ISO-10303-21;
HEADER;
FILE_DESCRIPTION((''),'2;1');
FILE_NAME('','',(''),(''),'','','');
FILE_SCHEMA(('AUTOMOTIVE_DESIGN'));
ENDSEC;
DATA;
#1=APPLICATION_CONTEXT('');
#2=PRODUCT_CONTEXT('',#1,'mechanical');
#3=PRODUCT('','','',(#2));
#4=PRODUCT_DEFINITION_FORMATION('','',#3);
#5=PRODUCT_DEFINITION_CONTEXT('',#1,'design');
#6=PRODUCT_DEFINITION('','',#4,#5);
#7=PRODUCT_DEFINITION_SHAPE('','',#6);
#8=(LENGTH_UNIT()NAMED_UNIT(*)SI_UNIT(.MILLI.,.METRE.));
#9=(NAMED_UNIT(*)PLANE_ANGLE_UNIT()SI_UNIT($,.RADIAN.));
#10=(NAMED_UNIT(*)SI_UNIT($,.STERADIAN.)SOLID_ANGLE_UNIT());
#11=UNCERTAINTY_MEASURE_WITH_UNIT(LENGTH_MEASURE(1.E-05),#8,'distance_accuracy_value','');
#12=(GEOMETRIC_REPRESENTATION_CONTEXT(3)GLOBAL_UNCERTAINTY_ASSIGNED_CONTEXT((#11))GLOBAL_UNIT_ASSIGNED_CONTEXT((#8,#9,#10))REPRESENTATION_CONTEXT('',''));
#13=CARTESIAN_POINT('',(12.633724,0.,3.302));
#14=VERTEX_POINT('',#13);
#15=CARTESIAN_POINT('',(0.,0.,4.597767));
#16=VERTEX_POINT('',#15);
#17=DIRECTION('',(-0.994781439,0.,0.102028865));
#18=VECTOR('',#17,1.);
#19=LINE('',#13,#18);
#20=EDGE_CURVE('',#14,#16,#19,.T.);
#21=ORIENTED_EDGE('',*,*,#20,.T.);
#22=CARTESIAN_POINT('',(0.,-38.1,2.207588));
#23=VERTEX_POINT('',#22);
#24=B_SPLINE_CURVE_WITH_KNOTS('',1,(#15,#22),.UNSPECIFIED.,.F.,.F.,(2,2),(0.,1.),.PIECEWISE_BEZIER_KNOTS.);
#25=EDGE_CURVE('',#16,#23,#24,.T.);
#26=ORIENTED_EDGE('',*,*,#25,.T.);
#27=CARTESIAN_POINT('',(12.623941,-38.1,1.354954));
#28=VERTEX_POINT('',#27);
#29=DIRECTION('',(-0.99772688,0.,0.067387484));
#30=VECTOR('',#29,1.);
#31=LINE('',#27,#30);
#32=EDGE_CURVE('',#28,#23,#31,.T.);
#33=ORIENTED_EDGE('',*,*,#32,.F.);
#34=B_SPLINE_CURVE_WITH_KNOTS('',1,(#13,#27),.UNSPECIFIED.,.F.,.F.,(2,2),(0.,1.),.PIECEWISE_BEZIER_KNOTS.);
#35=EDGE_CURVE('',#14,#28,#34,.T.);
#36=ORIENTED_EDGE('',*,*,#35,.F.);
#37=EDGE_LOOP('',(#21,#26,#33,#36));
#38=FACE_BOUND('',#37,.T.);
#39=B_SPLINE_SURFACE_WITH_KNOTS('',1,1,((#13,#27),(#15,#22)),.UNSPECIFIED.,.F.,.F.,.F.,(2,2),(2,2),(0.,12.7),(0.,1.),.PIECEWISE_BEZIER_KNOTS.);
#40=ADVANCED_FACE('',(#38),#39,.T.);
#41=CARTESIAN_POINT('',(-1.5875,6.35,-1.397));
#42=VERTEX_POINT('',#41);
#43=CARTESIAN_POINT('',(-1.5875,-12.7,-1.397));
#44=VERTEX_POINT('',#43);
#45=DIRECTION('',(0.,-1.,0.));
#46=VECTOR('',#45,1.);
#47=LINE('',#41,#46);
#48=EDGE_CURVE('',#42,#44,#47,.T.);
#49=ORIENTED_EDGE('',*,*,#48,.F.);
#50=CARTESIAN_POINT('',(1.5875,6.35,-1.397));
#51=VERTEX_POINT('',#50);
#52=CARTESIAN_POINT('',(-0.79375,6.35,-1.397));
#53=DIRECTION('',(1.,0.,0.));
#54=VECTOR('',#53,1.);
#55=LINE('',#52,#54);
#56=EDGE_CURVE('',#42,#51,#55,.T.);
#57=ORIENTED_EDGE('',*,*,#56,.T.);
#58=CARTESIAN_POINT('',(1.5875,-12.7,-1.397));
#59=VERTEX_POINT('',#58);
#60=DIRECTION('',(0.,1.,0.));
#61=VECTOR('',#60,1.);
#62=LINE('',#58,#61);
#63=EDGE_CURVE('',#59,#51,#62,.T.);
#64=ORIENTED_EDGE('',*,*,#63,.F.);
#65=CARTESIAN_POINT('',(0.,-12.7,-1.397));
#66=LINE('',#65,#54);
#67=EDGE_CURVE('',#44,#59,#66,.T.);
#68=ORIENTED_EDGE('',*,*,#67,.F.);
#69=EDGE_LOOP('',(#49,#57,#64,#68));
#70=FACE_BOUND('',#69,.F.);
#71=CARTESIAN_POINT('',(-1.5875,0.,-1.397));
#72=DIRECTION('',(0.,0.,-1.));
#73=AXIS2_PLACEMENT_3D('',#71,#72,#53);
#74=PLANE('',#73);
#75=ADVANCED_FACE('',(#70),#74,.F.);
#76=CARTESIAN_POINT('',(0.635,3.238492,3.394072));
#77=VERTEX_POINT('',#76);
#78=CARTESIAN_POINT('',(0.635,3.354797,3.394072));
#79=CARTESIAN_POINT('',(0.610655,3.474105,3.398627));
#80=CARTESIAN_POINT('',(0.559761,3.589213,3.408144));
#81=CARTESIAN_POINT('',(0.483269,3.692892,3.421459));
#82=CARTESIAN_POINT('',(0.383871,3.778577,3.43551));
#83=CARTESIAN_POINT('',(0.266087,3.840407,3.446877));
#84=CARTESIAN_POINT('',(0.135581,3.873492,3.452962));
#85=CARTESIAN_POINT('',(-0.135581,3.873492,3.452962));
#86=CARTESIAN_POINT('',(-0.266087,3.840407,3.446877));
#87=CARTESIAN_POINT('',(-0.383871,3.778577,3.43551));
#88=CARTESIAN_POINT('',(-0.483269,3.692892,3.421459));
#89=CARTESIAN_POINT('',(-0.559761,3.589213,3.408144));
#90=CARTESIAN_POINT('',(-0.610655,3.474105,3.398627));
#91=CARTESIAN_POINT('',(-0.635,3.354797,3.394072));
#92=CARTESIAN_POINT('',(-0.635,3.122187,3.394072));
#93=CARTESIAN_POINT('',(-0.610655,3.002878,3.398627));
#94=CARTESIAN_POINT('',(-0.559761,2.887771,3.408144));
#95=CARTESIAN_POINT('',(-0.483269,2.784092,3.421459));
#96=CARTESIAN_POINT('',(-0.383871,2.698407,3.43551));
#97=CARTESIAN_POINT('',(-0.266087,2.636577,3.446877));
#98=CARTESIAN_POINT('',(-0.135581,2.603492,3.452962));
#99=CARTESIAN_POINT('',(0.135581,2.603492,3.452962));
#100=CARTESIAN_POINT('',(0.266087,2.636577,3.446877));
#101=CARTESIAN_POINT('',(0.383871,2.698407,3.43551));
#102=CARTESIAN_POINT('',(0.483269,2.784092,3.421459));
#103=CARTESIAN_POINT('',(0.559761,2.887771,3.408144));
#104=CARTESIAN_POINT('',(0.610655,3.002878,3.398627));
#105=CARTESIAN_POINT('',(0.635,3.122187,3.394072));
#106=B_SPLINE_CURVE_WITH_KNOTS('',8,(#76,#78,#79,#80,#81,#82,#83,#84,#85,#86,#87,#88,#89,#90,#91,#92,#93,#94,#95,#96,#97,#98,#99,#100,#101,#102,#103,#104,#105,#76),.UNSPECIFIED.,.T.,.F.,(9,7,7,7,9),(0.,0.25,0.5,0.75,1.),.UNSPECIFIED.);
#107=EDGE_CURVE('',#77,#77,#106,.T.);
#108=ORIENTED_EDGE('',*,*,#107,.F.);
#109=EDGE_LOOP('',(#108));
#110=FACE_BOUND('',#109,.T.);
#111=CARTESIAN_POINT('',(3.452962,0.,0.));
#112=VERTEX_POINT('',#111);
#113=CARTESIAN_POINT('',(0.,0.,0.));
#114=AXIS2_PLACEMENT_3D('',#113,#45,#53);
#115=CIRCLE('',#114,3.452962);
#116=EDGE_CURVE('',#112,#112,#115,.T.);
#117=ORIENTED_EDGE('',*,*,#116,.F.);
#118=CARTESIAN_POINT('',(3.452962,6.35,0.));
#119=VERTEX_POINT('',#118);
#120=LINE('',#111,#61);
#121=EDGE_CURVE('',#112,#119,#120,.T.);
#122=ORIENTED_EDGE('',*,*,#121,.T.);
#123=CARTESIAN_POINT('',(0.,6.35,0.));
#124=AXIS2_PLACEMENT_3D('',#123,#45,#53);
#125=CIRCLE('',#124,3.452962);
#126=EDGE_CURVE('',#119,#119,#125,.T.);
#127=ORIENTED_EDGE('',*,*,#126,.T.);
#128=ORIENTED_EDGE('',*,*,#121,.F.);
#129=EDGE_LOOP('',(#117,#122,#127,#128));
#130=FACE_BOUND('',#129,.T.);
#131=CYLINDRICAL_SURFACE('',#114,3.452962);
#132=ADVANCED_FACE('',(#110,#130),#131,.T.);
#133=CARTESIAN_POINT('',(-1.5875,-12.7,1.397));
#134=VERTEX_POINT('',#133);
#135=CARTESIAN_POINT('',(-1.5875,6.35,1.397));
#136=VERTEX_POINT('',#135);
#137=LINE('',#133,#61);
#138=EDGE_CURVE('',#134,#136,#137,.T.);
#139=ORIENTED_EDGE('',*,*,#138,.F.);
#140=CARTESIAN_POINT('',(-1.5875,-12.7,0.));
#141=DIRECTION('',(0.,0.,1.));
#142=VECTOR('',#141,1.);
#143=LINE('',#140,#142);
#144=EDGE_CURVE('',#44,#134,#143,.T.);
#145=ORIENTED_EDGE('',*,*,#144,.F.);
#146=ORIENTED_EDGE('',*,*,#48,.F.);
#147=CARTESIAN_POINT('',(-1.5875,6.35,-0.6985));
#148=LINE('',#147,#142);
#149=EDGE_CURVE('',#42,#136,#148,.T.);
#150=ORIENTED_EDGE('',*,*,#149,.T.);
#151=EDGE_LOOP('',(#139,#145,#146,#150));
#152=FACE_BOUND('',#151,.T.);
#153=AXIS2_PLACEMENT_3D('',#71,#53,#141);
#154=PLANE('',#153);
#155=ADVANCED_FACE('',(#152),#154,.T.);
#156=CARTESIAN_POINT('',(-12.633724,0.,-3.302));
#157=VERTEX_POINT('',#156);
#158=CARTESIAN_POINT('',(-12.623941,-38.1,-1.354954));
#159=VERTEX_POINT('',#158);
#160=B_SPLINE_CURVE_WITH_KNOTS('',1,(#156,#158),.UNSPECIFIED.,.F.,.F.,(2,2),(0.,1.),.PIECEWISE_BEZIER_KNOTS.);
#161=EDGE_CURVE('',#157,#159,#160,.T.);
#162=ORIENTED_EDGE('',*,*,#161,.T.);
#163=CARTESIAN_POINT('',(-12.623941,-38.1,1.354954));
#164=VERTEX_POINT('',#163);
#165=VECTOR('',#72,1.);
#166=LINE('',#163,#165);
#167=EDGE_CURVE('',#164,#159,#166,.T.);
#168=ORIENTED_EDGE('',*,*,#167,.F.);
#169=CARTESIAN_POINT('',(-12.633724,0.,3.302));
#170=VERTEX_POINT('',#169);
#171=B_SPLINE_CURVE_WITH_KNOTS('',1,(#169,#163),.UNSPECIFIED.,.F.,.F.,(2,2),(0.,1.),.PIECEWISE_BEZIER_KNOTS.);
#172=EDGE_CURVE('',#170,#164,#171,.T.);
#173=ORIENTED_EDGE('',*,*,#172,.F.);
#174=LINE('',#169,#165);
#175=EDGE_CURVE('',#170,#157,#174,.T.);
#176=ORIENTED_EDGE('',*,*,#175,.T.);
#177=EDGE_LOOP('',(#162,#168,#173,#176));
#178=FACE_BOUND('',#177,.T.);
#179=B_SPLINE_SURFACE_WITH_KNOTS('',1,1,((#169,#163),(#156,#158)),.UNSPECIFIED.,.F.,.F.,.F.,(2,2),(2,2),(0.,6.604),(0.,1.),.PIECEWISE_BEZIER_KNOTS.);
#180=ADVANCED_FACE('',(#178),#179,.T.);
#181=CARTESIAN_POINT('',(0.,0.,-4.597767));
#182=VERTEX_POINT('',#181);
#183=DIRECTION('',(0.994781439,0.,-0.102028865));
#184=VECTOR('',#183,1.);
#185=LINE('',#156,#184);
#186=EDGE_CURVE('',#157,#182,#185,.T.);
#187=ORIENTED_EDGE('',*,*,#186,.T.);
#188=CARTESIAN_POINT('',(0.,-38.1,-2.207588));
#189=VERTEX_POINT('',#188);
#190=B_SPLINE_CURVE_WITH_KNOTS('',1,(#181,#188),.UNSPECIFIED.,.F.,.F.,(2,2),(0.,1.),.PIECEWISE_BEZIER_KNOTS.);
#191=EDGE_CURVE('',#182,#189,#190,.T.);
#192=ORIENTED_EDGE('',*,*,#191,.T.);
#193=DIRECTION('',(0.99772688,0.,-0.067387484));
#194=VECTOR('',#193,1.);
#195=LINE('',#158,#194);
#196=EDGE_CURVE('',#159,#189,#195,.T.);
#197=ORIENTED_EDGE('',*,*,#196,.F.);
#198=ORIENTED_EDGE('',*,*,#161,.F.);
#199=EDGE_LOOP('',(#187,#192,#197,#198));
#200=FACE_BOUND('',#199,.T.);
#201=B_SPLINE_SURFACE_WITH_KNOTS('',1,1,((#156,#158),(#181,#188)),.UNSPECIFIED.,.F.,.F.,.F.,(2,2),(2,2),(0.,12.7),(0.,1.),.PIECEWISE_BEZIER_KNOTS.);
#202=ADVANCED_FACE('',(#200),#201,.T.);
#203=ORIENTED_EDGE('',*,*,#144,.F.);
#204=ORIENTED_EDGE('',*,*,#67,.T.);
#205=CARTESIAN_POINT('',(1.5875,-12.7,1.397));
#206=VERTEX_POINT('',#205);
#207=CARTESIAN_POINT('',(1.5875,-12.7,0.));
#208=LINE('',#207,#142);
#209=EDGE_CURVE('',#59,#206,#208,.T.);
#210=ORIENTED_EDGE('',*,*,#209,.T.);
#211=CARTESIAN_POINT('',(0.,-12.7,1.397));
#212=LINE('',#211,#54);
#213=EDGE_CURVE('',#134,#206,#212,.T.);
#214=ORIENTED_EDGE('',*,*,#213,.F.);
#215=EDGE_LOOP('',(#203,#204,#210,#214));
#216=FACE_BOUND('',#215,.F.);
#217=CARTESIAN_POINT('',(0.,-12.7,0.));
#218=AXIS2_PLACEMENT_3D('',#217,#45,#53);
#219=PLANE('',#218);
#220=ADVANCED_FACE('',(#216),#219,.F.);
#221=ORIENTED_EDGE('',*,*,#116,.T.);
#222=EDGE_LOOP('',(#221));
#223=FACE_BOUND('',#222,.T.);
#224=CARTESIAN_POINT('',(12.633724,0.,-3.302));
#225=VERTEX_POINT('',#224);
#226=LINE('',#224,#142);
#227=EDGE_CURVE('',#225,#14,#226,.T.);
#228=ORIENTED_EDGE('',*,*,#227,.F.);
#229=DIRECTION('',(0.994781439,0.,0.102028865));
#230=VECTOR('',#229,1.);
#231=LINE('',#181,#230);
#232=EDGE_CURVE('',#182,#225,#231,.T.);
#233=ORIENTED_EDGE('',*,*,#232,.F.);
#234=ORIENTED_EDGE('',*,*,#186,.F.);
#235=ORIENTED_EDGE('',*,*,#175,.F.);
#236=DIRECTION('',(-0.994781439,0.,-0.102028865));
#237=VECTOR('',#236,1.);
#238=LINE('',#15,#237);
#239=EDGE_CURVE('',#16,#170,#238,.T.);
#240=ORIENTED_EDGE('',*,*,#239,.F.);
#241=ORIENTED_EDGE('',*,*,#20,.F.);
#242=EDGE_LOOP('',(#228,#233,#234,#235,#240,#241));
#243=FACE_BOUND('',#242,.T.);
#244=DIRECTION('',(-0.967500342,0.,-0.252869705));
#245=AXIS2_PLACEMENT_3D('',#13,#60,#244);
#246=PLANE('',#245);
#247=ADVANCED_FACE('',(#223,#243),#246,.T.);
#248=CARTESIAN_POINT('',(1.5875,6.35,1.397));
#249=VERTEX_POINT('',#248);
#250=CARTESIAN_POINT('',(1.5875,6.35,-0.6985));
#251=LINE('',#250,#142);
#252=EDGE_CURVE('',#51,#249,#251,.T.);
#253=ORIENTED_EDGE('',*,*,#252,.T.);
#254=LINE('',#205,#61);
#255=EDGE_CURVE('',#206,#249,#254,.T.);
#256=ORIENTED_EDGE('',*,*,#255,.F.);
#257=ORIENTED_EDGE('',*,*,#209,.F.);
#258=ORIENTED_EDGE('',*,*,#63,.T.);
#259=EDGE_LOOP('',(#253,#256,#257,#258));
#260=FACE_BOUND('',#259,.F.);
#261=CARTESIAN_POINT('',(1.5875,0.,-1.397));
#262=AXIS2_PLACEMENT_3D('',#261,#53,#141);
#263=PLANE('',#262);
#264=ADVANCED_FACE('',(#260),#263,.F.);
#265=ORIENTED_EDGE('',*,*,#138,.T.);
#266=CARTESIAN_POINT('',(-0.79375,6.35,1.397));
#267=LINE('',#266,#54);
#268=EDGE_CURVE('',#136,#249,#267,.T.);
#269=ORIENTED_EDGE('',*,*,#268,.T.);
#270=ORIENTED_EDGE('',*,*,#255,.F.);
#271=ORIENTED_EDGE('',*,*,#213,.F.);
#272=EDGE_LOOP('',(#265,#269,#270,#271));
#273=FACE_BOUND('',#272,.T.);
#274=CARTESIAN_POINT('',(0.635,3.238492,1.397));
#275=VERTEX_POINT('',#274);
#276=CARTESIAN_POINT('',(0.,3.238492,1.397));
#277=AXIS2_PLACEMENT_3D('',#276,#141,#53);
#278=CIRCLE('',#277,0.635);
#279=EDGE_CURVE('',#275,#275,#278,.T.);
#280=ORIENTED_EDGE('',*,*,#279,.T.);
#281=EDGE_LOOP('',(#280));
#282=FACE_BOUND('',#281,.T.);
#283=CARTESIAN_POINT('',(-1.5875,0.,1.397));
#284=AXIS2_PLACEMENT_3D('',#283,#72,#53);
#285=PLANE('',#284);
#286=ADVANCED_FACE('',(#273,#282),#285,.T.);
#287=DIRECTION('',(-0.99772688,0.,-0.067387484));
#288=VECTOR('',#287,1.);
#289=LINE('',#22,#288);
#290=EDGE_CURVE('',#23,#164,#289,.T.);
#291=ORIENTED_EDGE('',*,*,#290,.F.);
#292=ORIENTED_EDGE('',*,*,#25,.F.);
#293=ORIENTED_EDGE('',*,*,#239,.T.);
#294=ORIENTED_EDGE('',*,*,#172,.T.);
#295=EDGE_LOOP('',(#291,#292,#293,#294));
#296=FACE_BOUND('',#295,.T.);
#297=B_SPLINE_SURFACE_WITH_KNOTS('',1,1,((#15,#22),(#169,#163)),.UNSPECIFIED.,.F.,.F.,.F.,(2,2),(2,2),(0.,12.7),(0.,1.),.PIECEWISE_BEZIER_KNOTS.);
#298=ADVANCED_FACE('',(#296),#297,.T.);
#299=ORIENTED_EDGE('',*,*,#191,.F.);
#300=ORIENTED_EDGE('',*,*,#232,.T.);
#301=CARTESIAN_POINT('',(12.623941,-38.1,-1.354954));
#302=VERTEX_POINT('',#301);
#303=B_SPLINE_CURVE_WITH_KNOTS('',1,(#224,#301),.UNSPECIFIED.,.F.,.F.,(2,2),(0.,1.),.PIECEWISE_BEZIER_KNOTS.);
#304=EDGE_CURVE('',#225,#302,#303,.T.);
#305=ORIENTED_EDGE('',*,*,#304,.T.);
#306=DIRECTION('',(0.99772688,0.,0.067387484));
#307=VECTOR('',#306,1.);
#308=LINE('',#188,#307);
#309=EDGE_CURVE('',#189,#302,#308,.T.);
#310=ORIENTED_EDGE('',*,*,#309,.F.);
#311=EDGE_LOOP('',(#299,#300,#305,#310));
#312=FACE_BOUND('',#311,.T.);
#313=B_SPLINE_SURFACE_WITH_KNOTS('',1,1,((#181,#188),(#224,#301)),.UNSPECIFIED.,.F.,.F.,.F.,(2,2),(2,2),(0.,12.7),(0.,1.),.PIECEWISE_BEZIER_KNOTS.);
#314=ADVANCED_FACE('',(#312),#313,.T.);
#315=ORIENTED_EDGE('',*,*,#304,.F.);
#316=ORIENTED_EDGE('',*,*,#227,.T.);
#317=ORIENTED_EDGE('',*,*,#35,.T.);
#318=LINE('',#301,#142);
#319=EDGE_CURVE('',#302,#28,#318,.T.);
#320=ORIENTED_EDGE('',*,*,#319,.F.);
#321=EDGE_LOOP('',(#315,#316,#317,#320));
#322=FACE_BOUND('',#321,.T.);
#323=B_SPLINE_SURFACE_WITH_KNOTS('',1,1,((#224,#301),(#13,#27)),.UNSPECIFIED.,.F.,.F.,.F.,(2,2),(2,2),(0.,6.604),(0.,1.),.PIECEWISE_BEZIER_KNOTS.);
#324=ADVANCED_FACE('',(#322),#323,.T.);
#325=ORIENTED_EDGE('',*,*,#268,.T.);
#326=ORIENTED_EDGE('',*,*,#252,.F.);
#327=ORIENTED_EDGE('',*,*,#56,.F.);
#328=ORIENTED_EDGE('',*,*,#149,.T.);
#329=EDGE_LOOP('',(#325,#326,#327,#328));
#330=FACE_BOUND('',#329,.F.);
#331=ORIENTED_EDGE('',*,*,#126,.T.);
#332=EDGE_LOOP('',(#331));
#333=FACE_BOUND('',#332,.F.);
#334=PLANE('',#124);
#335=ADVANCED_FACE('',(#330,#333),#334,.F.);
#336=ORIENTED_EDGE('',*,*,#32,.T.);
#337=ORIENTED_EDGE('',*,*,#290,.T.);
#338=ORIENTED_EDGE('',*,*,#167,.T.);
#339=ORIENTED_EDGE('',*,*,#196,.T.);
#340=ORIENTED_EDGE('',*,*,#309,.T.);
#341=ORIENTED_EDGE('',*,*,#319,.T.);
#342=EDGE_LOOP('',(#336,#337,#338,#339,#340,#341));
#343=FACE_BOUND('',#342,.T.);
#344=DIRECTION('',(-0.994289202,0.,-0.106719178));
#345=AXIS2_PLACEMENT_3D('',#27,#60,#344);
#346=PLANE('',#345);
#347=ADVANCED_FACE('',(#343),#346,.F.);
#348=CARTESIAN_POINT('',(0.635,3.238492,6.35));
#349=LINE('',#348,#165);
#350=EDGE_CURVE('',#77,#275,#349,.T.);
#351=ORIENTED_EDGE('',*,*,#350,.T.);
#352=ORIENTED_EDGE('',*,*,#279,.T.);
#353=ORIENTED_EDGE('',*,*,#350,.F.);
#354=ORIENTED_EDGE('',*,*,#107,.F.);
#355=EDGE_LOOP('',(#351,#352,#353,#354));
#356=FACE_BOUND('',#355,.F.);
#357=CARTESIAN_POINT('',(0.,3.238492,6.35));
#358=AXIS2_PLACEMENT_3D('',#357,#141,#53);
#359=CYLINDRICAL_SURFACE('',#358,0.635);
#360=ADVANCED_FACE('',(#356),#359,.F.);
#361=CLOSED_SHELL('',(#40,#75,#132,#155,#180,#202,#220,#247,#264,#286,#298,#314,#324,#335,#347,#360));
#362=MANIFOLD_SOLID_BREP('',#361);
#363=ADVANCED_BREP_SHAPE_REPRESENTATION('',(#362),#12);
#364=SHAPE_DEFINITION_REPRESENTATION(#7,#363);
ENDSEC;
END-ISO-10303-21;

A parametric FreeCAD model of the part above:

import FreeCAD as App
import Part
import Sketcher

V = App.Vector
Q = App.Units.Quantity

doc = App.newDocument("Part")
body = doc.addObject("PartDesign::Body", "Body")

# Sketch on XZ plane
sketch1 = doc.addObject("Sketcher::SketchObject", "Sketch")
body.addObject(sketch1)
sketch1.AttachmentSupport = (doc.XZ_Plane, [""])
sketch1.MapMode = "FlatFace"
sketch1.addGeometry([
    Part.LineSegment(V(12.633724, 3.302, 0), V(0, 4.597767, 0)),  # 0
    Part.LineSegment(V(0, 4.597767, 0), V(-12.633724, 3.302, 0)),  # 1
    Part.LineSegment(V(-12.633724, 3.302, 0), V(-12.633724, -3.302, 0)),  # 2
    Part.LineSegment(V(-12.633724, -3.302, 0), V(0, -4.597767, 0)),  # 3
    Part.LineSegment(V(0, -4.597767, 0), V(12.633724, -3.302, 0)),  # 4
    Part.LineSegment(V(12.633724, -3.302, 0), V(12.633724, 3.302, 0)),  # 5
], False)
sketch1.addConstraint([
    Sketcher.Constraint("Coincident", 0, 2, 1, 1),
    Sketcher.Constraint("Coincident", 1, 2, 2, 1),
    Sketcher.Constraint("Coincident", 2, 2, 3, 1),
    Sketcher.Constraint("Coincident", 3, 2, 4, 1),
    Sketcher.Constraint("Coincident", 4, 2, 5, 1),
    Sketcher.Constraint("Coincident", 5, 2, 0, 1),
    Sketcher.Constraint("Vertical", 2),
    Sketcher.Constraint("Vertical", 5),
    Sketcher.Constraint("Symmetric", 0, 2, 3, 2, -1, 1),
    Sketcher.Constraint("Symmetric", 1, 2, 4, 2, -1, 1),
    Sketcher.Constraint("PointOnObject", 0, 2, -2),
    Sketcher.Constraint("Parallel", 0, 3),
    Sketcher.Constraint("Horizontal", 2, 2, 4, 2),
    Sketcher.Constraint("Distance", 0, Q("0.5 in")),
    Sketcher.Constraint("DistanceY", 2, 2, 2, 1, Q("0.26 in")),
    Sketcher.Constraint("DistanceX", 2, 2, 4, 2, Q("25.267449 mm")),
])

# Sketch on XZ plane
sketch2 = doc.addObject("Sketcher::SketchObject", "Sketch001")
body.addObject(sketch2)
sketch2.AttachmentSupport = (doc.XZ_Plane, [""])
sketch2.MapMode = "FlatFace"
sketch2.AttachmentOffset = App.Placement(V(0, 0, 1.5 * 25.4), App.Rotation())
sketch2.addGeometry([
    Part.LineSegment(V(12.623941, -1.354954, 0), V(12.623941, 1.354954, 0)),  # 0
    Part.LineSegment(V(12.623941, 1.354954, 0), V(0, 2.207588, 0)),  # 1
    Part.LineSegment(V(0, 2.207588, 0), V(-12.623941, 1.354954, 0)),  # 2
    Part.LineSegment(V(-12.623941, 1.354954, 0), V(-12.623941, -1.354954, 0)),  # 3
    Part.LineSegment(V(-12.623941, -1.354954, 0), V(0, -2.207588, 0)),  # 4
    Part.LineSegment(V(0, -2.207588, 0), V(12.623941, -1.354954, 0)),  # 5
], False)
sketch2.addConstraint([
    Sketcher.Constraint("Coincident", 0, 2, 1, 1),
    Sketcher.Constraint("Coincident", 1, 2, 2, 1),
    Sketcher.Constraint("Coincident", 2, 2, 3, 1),
    Sketcher.Constraint("Coincident", 3, 2, 4, 1),
    Sketcher.Constraint("Coincident", 4, 2, 5, 1),
    Sketcher.Constraint("Coincident", 5, 2, 0, 1),
    Sketcher.Constraint("Vertical", 0),
    Sketcher.Constraint("Vertical", 3),
    Sketcher.Constraint("Symmetric", 0, 2, 3, 2, -1, 1),
    Sketcher.Constraint("Symmetric", 1, 2, 4, 2, -1, 1),
    Sketcher.Constraint("PointOnObject", 1, 2, -2),
    Sketcher.Constraint("Parallel", 2, 5),
    Sketcher.Constraint("Horizontal", 0, 2, 2, 2),
    Sketcher.Constraint("Distance", 1, Q("12.652702 mm")),
    Sketcher.Constraint("DistanceY", 0, 1, 0, 2, Q("2.709909 mm")),
    Sketcher.Constraint("DistanceX", -1, 1, 0, 2, Q("12.623941 mm")),
])

additiveloft = doc.addObject("PartDesign::AdditiveLoft", "AdditiveLoft")
body.addObject(additiveloft)
additiveloft.Profile = sketch1
additiveloft.Sections = [sketch2]

# Sketch on XZ plane
sketch3 = doc.addObject("Sketcher::SketchObject", "Sketch002")
body.addObject(sketch3)
sketch3.AttachmentSupport = (doc.XZ_Plane, [""])
sketch3.MapMode = "FlatFace"
sketch3.addGeometry(Part.Circle(V(0, 0, 0), V(0, 0, 1), 3.452962), False)
sketch3.addConstraint([
    Sketcher.Constraint("Coincident", 0, 3, -1, 1),
    Sketcher.Constraint("Diameter", 0, Q("6.905924 mm")),
])
pad1 = doc.addObject("PartDesign::Pad", "Pad")
body.addObject(pad1)
pad1.Profile = sketch3
pad1.Length = Q("0.25 in")
pad1.Reversed = True

# Sketch on XZ plane
sketch4 = doc.addObject("Sketcher::SketchObject", "Sketch003")
body.addObject(sketch4)
sketch4.AttachmentSupport = (doc.XZ_Plane, [""])
sketch4.MapMode = "FlatFace"
sketch4.addGeometry([
    Part.LineSegment(V(-1.5875, 1.397, 0), V(-1.5875, -1.397, 0)),
    Part.LineSegment(V(-1.5875, -1.397, 0), V(1.5875, -1.397, 0)),
    Part.LineSegment(V(1.5875, -1.397, 0), V(1.5875, 1.397, 0)),
    Part.LineSegment(V(1.5875, 1.397, 0), V(-1.5875, 1.397, 0)),
], False)
sketch4.addConstraint([
    Sketcher.Constraint("Coincident", 0, 2, 1, 1),
    Sketcher.Constraint("Coincident", 1, 2, 2, 1),
    Sketcher.Constraint("Coincident", 2, 2, 3, 1),
    Sketcher.Constraint("Coincident", 3, 2, 0, 1),
    Sketcher.Constraint("Vertical", 0),
    Sketcher.Constraint("Horizontal", 1),
    Sketcher.Constraint("Vertical", 2),
    Sketcher.Constraint("Horizontal", 3),
    Sketcher.Constraint("Symmetric", 0, 2, 2, 2, -1, 1),
    Sketcher.Constraint("DistanceY", 0, 2, 0, 1, Q("0.11 in")),
    Sketcher.Constraint("DistanceX", 1, 1, 1, 2, Q("0.125 in")),
])
pocket1 = doc.addObject("PartDesign::Pocket", "Pocket")
body.addObject(pocket1)
pocket1.Profile = sketch4
pocket1.Type = "TwoLengths"
pocket1.Length = Q("1 in")
pocket1.Length2 = Q("0.5 in")

# Sketch on XY plane
sketch5 = doc.addObject("Sketcher::SketchObject", "Sketch004")
body.addObject(sketch5)
sketch5.AttachmentSupport = (doc.XY_Plane, [""])
sketch5.MapMode = "FlatFace"
sketch5.AttachmentOffset = App.Placement(V(0, 0, 0.25 * 25.4), App.Rotation())
sketch5.addGeometry(Part.Circle(V(0, 3.238492, 0), V(0, 0, 1), 0.635), False)
sketch5.addConstraint([
    Sketcher.Constraint("PointOnObject", 0, 3, -2),
    Sketcher.Constraint("Diameter", 0, Q("0.05 in")),
    Sketcher.Constraint("DistanceY", -1, 1, 0, 3, Q("3.238492 mm")),
])
pocket2 = doc.addObject("PartDesign::Pocket", "Pocket001")
body.addObject(pocket2)
pocket2.Profile = sketch5
pocket2.Length = Q("0.25 in")

doc.recompute()
